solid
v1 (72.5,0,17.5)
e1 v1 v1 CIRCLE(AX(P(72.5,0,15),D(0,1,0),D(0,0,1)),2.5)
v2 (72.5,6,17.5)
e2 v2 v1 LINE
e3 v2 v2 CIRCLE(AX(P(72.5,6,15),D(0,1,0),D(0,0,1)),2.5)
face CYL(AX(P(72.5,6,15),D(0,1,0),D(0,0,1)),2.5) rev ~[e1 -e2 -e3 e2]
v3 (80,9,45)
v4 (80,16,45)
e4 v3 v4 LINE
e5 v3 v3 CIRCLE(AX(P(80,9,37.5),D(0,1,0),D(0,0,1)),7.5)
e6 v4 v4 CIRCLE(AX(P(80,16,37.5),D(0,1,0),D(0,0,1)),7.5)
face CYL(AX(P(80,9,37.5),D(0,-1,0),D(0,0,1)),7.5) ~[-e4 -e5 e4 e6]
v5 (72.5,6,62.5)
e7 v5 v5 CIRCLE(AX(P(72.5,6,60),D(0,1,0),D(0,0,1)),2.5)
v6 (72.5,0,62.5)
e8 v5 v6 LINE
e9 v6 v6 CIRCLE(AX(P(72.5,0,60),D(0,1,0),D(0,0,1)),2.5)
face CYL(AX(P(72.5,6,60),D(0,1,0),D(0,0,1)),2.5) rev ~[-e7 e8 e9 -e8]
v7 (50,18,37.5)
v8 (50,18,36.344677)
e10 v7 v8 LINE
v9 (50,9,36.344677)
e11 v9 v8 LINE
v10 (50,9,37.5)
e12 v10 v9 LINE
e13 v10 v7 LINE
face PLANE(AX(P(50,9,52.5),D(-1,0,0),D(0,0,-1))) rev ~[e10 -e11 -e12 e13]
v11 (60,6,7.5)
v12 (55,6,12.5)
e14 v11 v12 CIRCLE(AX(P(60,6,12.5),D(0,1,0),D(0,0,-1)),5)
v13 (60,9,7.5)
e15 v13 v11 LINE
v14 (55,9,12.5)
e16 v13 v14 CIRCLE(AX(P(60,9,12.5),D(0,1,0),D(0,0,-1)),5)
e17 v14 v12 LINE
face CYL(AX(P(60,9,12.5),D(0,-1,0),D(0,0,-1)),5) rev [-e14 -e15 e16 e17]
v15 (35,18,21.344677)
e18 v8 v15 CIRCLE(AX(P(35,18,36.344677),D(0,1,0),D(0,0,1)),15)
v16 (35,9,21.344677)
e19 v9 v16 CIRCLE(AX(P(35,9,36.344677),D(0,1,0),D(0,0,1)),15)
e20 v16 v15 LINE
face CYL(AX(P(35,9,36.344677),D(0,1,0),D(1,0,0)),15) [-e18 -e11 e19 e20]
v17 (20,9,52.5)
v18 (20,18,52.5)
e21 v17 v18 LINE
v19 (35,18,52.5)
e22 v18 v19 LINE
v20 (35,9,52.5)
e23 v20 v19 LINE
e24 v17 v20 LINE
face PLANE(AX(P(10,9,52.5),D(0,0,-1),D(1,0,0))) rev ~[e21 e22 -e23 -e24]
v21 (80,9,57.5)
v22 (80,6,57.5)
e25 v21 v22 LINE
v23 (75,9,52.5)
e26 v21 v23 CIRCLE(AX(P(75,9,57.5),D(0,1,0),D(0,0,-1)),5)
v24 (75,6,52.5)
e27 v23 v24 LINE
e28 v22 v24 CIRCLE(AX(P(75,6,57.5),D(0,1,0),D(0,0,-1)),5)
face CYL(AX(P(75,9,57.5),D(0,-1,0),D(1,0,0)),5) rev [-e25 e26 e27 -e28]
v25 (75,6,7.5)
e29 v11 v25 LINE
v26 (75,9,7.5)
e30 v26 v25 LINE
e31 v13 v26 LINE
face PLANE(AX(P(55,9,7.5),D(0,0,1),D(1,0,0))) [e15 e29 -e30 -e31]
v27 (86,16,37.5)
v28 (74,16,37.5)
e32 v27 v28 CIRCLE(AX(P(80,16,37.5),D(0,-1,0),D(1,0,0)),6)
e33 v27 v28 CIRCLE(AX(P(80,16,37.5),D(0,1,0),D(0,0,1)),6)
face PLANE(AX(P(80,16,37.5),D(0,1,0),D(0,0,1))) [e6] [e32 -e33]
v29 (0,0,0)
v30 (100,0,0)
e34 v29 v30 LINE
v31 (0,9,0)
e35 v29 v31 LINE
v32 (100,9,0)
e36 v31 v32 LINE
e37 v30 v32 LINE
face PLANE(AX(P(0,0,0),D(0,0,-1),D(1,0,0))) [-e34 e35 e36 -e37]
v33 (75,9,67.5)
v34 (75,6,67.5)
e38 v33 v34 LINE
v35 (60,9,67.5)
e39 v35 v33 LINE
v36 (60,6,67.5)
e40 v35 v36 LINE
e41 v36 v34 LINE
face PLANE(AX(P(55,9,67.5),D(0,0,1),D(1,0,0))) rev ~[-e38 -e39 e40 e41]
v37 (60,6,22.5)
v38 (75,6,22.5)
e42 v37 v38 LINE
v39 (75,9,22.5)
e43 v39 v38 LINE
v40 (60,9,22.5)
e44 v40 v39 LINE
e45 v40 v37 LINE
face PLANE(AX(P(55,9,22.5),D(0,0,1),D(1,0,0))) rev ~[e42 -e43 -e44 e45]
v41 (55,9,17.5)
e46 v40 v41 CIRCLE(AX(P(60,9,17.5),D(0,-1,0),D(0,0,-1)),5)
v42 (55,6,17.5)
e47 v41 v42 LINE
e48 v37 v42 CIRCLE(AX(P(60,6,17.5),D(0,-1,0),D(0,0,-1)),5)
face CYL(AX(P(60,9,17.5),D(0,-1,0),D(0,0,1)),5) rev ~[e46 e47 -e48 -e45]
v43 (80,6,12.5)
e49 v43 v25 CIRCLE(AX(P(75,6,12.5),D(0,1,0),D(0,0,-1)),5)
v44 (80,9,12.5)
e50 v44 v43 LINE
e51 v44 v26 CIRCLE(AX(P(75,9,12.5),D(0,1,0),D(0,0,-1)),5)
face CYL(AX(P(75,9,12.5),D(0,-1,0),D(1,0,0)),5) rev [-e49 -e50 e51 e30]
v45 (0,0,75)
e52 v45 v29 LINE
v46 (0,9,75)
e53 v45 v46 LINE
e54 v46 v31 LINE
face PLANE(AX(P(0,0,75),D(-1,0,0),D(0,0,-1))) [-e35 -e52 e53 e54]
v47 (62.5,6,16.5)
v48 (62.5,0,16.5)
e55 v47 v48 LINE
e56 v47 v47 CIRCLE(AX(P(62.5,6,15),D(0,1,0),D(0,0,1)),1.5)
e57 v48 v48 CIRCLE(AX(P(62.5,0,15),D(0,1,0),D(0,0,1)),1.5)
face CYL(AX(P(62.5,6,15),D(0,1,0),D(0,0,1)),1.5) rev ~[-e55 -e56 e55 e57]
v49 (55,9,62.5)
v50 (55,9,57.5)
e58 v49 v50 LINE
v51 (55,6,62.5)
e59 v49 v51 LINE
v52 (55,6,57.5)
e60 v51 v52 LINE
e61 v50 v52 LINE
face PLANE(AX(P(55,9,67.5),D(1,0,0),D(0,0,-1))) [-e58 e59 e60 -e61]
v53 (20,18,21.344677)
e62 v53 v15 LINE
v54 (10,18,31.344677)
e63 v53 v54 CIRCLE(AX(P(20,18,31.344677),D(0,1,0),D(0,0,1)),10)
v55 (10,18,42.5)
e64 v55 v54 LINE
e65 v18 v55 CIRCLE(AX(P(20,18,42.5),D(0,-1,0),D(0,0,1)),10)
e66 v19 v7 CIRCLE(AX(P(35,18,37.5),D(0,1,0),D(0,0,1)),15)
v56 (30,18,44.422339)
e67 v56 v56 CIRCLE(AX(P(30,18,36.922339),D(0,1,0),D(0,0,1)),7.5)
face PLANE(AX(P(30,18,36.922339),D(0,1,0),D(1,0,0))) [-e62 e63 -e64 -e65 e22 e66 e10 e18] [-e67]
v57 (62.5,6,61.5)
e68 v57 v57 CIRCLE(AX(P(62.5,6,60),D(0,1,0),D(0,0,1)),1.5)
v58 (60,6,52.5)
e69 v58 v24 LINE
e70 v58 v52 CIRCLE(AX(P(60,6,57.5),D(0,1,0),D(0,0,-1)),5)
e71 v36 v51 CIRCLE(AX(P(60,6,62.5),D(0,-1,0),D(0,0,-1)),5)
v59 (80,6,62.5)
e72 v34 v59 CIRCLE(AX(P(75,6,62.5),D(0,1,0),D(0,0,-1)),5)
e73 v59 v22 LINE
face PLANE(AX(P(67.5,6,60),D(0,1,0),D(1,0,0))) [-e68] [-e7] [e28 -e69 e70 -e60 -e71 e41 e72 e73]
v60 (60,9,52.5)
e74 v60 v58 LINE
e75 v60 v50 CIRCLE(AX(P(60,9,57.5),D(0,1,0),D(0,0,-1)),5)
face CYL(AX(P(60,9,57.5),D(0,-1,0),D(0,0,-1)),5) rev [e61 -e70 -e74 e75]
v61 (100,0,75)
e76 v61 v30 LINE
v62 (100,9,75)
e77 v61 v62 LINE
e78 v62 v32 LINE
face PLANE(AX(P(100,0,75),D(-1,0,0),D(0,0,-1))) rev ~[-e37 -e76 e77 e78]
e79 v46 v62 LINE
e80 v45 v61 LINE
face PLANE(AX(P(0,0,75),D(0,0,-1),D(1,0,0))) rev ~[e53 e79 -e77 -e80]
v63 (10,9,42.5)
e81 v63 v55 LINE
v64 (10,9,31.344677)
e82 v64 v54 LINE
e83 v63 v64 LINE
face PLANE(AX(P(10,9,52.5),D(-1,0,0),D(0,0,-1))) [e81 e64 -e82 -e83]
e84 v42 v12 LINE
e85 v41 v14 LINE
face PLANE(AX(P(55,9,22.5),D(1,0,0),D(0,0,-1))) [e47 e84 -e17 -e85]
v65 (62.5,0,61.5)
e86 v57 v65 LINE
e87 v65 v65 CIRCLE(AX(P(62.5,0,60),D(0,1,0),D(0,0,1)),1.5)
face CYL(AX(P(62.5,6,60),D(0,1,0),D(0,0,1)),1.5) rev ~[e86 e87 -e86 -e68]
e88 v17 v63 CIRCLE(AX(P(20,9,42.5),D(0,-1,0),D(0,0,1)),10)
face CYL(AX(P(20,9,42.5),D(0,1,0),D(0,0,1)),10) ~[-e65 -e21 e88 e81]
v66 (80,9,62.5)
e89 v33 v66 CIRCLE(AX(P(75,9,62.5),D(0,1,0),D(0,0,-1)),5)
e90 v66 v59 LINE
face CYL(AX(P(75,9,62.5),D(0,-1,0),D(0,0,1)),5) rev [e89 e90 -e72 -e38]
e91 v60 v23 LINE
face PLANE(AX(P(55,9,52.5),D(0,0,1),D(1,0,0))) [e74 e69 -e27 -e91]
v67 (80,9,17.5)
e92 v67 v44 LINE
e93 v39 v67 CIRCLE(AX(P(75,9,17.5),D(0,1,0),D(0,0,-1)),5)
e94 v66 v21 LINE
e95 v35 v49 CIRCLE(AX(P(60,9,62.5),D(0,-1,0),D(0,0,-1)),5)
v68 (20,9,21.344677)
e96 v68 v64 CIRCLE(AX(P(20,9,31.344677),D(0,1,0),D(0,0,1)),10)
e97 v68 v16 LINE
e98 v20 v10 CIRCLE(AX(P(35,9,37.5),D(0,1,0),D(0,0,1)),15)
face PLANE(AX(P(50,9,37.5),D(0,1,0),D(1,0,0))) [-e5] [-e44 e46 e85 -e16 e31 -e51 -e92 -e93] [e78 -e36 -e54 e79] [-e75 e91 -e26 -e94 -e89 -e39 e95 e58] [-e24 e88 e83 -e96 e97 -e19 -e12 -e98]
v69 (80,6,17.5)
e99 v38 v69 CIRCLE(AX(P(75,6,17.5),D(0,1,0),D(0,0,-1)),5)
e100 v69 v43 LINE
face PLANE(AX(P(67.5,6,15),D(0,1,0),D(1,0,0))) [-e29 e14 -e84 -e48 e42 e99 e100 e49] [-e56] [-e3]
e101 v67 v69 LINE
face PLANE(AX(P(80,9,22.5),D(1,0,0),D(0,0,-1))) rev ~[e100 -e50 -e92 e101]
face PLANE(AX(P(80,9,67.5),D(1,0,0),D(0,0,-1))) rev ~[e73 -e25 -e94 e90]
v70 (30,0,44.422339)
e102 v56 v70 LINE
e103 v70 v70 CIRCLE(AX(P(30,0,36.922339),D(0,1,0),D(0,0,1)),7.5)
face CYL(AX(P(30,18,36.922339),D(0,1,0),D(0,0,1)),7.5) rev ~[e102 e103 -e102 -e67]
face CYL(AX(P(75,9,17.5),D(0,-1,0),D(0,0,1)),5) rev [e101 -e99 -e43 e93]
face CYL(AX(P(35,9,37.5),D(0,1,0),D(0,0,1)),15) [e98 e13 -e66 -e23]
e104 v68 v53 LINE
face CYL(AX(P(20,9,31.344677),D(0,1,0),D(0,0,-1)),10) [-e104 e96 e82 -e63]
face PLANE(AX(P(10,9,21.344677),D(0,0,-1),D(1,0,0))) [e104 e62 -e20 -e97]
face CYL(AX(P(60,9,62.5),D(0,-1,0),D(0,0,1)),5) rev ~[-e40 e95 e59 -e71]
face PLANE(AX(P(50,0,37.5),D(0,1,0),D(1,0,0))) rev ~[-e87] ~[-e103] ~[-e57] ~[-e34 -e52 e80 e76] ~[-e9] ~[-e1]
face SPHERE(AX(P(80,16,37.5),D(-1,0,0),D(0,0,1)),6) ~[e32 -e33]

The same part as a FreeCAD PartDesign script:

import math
import FreeCAD as App
import Part
import Sketcher

V = App.Vector
Q = App.Units.Quantity


def edges_at(feature, points):
    """Names of the edges that pass closest to the given points."""
    edges = feature.Shape.Edges
    near = lambda p: min(range(len(edges)), key=lambda i: edges[i].distToShape(Part.Vertex(*p))[0])
    return sorted({f"Edge{near(p) + 1}" for p in points})


def add_polygon(sketch, points):
    """Adds a closed chain of lines whose ends are joined by coincident constraints."""
    first, n = sketch.GeometryCount, len(points)
    for a, b in zip(points, points[1:] + points[:1]):
        sketch.addGeometry(Part.LineSegment(App.Vector(*a, 0), App.Vector(*b, 0)), False)
    for i in range(n):
        sketch.addConstraint(Sketcher.Constraint("Coincident", first + i, 2, first + (i + 1) % n, 1))

doc = App.newDocument("Part")
body = doc.addObject("PartDesign::Body", "Body")

sketch1 = body.newObject("Sketcher::SketchObject", "Sketch")
sketch1.AttachmentSupport = (doc.getObject("XZ_Plane"), [""])
sketch1.MapMode = "FlatFace"
add_polygon(sketch1, [(0, 0), (0, 75), (100, 75), (100, 0)])
sketch1.addConstraint(Sketcher.Constraint("Vertical", 0))
sketch1.addConstraint(Sketcher.Constraint("Horizontal", 1))
sketch1.addConstraint(Sketcher.Constraint("Vertical", 2))
sketch1.addConstraint(Sketcher.Constraint("Horizontal", 3))
sketch1.addConstraint(Sketcher.Constraint("Coincident", 3, 2, -1, 1))
sketch1.addConstraint(Sketcher.Constraint("DistanceX", 1, 1, 1, 2, Q("100 mm")))
sketch1.addConstraint(Sketcher.Constraint("DistanceY", 0, 1, 0, 2, Q("75 mm")))
pad1 = body.newObject("PartDesign::Pad", "Pad")
pad1.Profile = sketch1
pad1.Length = 9
pad1.Reversed = True

sketch2 = body.newObject("Sketcher::SketchObject", "Sketch001")
sketch2.AttachmentSupport = (doc.getObject("XZ_Plane"), [""])
sketch2.MapMode = "FlatFace"
sketch2.AttachmentOffset = App.Placement(V(0, 0, -9), App.Rotation())
add_polygon(sketch2, [(10, 21.344677), (10, 52.5), (50, 52.5), (50, 21.344677)])
sketch2.addConstraint(Sketcher.Constraint("Vertical", 0))
sketch2.addConstraint(Sketcher.Constraint("Horizontal", 1))
sketch2.addConstraint(Sketcher.Constraint("Vertical", 2))
sketch2.addConstraint(Sketcher.Constraint("Horizontal", 3))
sketch2.addConstraint(Sketcher.Constraint("DistanceX", 1, 1, 1, 2, Q("40 mm")))
sketch2.addConstraint(Sketcher.Constraint("DistanceX", -1, 1, 0, 2, Q("10 mm")))
sketch2.addConstraint(Sketcher.Constraint("DistanceY", -1, 1, 0, 2, Q("52.5 mm")))
sketch2.addConstraint(Sketcher.Constraint("DistanceY", 0, 1, 0, 2, Q("31.155323 mm")))
pad2 = body.newObject("PartDesign::Pad", "Pad001")
pad2.Profile = sketch2
pad2.Length = 9
pad2.Reversed = True
doc.recompute()

fillet = body.newObject("PartDesign::Fillet", "Fillet")
fillet.Base = (pad2, edges_at(pad2, [(10, 13.5, 21.345), (10, 13.5, 52.5)]))
fillet.Radius = 10
doc.recompute()

fillet2 = body.newObject("PartDesign::Fillet", "Fillet001")
fillet2.Base = (fillet, edges_at(fillet, [(50, 13.5, 52.5), (50, 13.5, 21.345)]))
fillet2.Radius = 15

sketch3 = body.newObject("Sketcher::SketchObject", "Sketch002")
sketch3.AttachmentSupport = (doc.getObject("XZ_Plane"), [""])
sketch3.MapMode = "FlatFace"
sketch3.AttachmentOffset = App.Placement(V(0, 0, -18), App.Rotation())
sketch3.addGeometry(Part.Circle(V(30, 36.922339, 0), V(0, 0, 1), 7.5), False)
sketch3.addConstraint(Sketcher.Constraint("Diameter", 0, Q("15 mm")))
sketch3.addConstraint(Sketcher.Constraint("DistanceX", -1, 1, 0, 3, Q("30 mm")))
sketch3.addConstraint(Sketcher.Constraint("DistanceY", -1, 1, 0, 3, Q("36.922339 mm")))
pocket1 = body.newObject("PartDesign::Pocket", "Pocket")
pocket1.Profile = sketch3
pocket1.Type = "ThroughAll"
pocket1.Reversed = True

sketch4 = body.newObject("Sketcher::SketchObject", "Sketch003")
sketch4.AttachmentSupport = (doc.getObject("XZ_Plane"), [""])
sketch4.MapMode = "FlatFace"
sketch4.AttachmentOffset = App.Placement(V(0, 0, -9), App.Rotation())
add_polygon(sketch4, [(55, 52.5), (55, 67.5), (80, 67.5), (80, 52.5)])
add_polygon(sketch4, [(55, 7.5), (55, 22.5), (80, 22.5), (80, 7.5)])
sketch4.addConstraint(Sketcher.Constraint("Vertical", 0))
sketch4.addConstraint(Sketcher.Constraint("Horizontal", 1))
sketch4.addConstraint(Sketcher.Constraint("Vertical", 2))
sketch4.addConstraint(Sketcher.Constraint("Horizontal", 3))
sketch4.addConstraint(Sketcher.Constraint("Vertical", 4))
sketch4.addConstraint(Sketcher.Constraint("Horizontal", 5))
sketch4.addConstraint(Sketcher.Constraint("Vertical", 6))
sketch4.addConstraint(Sketcher.Constraint("Horizontal", 7))
sketch4.addConstraint(Sketcher.Constraint("Vertical", 3, 2, 4, 2))
sketch4.addConstraint(Sketcher.Constraint("Vertical", 2, 2, 5, 2))
sketch4.addConstraint(Sketcher.Constraint("Equal", 2, 4))
sketch4.addConstraint(Sketcher.Constraint("DistanceX", 1, 1, 1, 2, Q("25 mm")))
sketch4.addConstraint(Sketcher.Constraint("DistanceY", 0, 1, 0, 2, Q("15 mm")))
sketch4.addConstraint(Sketcher.Constraint("DistanceX", -1, 1, 0, 2, Q("55 mm")))
sketch4.addConstraint(Sketcher.Constraint("DistanceY", 4, 2, 3, 2, Q("30 mm")))
sketch4.addConstraint(Sketcher.Constraint("DistanceY", -1, 1, 0, 2, Q("67.5 mm")))
pocket2 = body.newObject("PartDesign::Pocket", "Pocket001")
pocket2.Profile = sketch4
pocket2.Length = 3
pocket2.Reversed = True
doc.recompute()

fillet3 = body.newObject("PartDesign::Fillet", "Fillet002")
fillet3.Base = (pocket2, edges_at(pocket2, [
    (55, 7.5, 67.5),
    (55, 7.5, 52.5),
    (80, 7.5, 52.5),
    (80, 7.5, 67.5),
    (80, 7.5, 22.5),
    (55, 7.5, 22.5),
    (55, 7.5, 7.5),
    (80, 7.5, 7.5),
]))
fillet3.Radius = 5

sketch5 = body.newObject("Sketcher::SketchObject", "Sketch004")
sketch5.AttachmentSupport = (doc.getObject("XZ_Plane"), [""])
sketch5.MapMode = "FlatFace"
sketch5.AttachmentOffset = App.Placement(V(0, 0, -6), App.Rotation())
sketch5.addGeometry(Part.Circle(V(62.5, 60, 0), V(0, 0, 1), 1.5), False)
sketch5.addGeometry(Part.Circle(V(72.5, 60, 0), V(0, 0, 1), 2.5), False)
sketch5.addGeometry(Part.Circle(V(72.5, 15, 0), V(0, 0, 1), 2.5), False)
sketch5.addGeometry(Part.Circle(V(62.5, 15, 0), V(0, 0, 1), 1.5), False)
sketch5.addConstraint(Sketcher.Constraint("Equal", 1, 2))
sketch5.addConstraint(Sketcher.Constraint("Equal", 0, 3))
sketch5.addConstraint(Sketcher.Constraint("Horizontal", 0, 3, 1, 3))
sketch5.addConstraint(Sketcher.Constraint("Horizontal", 2, 3, 3, 3))
sketch5.addConstraint(Sketcher.Constraint("Vertical", 1, 3, 2, 3))
sketch5.addConstraint(Sketcher.Constraint("Vertical", 0, 3, 3, 3))
sketch5.addConstraint(Sketcher.Constraint("Diameter", 0, Q("3 mm")))
sketch5.addConstraint(Sketcher.Constraint("Diameter", 1, Q("5 mm")))
sketch5.addConstraint(Sketcher.Constraint("DistanceY", -1, 1, 0, 3, Q("60 mm")))
sketch5.addConstraint(Sketcher.Constraint("DistanceY", -1, 1, 2, 3, Q("15 mm")))
sketch5.addConstraint(Sketcher.Constraint("DistanceX", 0, 3, 1, 3, Q("10 mm")))
sketch5.addConstraint(Sketcher.Constraint("DistanceX", -1, 1, 0, 3, Q("62.5 mm")))
pocket3 = body.newObject("PartDesign::Pocket", "Pocket002")
pocket3.Profile = sketch5
pocket3.Length = 7
pocket3.Reversed = True

sketch6 = body.newObject("Sketcher::SketchObject", "Sketch005")
sketch6.AttachmentSupport = (doc.getObject("XZ_Plane"), [""])
sketch6.MapMode = "FlatFace"
sketch6.AttachmentOffset = App.Placement(V(0, 0, -9), App.Rotation())
sketch6.addGeometry(Part.Circle(V(80, 37.5, 0), V(0, 0, 1), 7.5), False)
sketch6.addConstraint(Sketcher.Constraint("Diameter", 0, Q("15 mm")))
sketch6.addConstraint(Sketcher.Constraint("DistanceX", -1, 1, 0, 3, Q("80 mm")))
sketch6.addConstraint(Sketcher.Constraint("DistanceY", -1, 1, 0, 3, Q("37.5 mm")))
pad3 = body.newObject("PartDesign::Pad", "Pad002")
pad3.Profile = sketch6
pad3.Length = 7
pad3.Reversed = True

sketch7 = body.newObject("Sketcher::SketchObject", "Sketch006")
sketch7.AttachmentSupport = (doc.getObject("XZ_Plane"), [""])
sketch7.MapMode = "FlatFace"
sketch7.AttachmentOffset = App.Placement(V(0, 0, -16), App.Rotation())
sketch7.addGeometry(Part.LineSegment(V(86, 37.5, 0), V(74, 37.5, 0)), False)
sketch7.addGeometry(Part.ArcOfCircle(Part.Circle(V(80, 37.5, 0), V(0, 0, 1), 6), math.radians(0), math.radians(180)), False)
sketch7.addGeometry(Part.LineSegment(V(74, 37.5, 0), V(86, 37.5, 0)), True)
sketch7.addConstraint(Sketcher.Constraint("Coincident", 0, 1, 1, 1))
sketch7.addConstraint(Sketcher.Constraint("Coincident", 1, 2, 0, 2))
sketch7.addConstraint(Sketcher.Constraint("Horizontal", 0))
sketch7.addConstraint(Sketcher.Constraint("Horizontal", 2))
sketch7.addConstraint(Sketcher.Constraint("Coincident", 2, 1, 1, 2))
sketch7.addConstraint(Sketcher.Constraint("Horizontal", 1, 3, 0, 1))
sketch7.addConstraint(Sketcher.Constraint("Equal", 0, 2))
sketch7.addConstraint(Sketcher.Constraint("Radius", 1, Q("6 mm")))
sketch7.addConstraint(Sketcher.Constraint("DistanceX", -1, 1, 1, 3, Q("80 mm")))
sketch7.addConstraint(Sketcher.Constraint("DistanceY", -1, 1, 1, 3, Q("37.5 mm")))
revolution = body.newObject("PartDesign::Revolution", "Revolution")
revolution.Profile = sketch7
revolution.ReferenceAxis = (sketch7, ["Axis0"])
revolution.Angle = 360

doc.recompute()
